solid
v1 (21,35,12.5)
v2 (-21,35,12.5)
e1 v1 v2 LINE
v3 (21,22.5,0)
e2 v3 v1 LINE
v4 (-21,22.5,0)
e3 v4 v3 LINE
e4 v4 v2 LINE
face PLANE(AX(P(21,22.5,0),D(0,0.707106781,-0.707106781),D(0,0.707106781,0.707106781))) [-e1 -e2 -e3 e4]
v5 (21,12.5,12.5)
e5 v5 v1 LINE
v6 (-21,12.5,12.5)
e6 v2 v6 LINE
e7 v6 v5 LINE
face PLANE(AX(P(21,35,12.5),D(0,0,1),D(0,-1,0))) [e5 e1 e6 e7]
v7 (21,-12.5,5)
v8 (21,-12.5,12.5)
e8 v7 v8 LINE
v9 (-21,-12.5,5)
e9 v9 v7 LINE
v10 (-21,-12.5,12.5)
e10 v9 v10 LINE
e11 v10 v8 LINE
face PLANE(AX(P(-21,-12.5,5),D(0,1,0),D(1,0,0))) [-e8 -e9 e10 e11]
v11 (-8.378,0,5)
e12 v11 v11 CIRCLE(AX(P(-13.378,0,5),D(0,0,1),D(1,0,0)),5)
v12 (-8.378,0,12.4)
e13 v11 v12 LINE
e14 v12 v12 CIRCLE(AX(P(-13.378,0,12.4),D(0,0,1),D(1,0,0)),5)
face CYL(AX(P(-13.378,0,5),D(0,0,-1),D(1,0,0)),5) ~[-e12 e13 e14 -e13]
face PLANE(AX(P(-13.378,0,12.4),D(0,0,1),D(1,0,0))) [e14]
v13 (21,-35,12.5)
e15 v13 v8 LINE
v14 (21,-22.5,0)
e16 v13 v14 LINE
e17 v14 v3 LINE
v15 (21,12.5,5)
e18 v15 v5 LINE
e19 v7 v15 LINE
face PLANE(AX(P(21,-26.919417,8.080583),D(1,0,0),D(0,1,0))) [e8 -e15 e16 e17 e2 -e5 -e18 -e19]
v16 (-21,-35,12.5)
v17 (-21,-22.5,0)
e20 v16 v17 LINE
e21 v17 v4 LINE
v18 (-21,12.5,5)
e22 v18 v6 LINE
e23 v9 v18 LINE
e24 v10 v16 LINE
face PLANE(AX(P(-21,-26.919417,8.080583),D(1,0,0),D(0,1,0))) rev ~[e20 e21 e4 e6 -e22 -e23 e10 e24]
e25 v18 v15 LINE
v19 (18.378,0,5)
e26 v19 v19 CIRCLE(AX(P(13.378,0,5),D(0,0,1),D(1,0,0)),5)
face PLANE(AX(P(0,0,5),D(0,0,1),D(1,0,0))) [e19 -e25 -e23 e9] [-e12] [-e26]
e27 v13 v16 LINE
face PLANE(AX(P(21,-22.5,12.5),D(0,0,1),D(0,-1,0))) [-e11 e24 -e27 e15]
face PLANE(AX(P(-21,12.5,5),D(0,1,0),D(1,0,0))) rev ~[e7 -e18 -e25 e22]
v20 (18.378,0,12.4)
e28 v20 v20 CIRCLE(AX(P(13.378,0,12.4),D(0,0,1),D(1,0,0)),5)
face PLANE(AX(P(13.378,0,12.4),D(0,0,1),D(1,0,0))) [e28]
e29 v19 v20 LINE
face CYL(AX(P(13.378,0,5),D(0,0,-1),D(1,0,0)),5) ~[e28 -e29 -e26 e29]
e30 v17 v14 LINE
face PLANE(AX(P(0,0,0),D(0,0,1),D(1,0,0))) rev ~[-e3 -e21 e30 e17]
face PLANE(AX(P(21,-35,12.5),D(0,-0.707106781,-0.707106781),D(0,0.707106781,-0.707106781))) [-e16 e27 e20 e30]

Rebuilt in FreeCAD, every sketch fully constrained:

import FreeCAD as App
import Part
import Sketcher
Q = App.Units.Quantity

doc = App.newDocument("Part")
body = doc.addObject("PartDesign::Body", "Body")

# Sketch on XY plane
sketch1 = body.newObject("Sketcher::SketchObject", "Sketch")
sketch1.AttachmentSupport = (doc.getObject("XY_Plane"), [""])
sketch1.MapMode = "FlatFace"
sketch1.addGeometry([
    Part.LineSegment(App.Vector(-21, 22, 0), App.Vector(-21, -22, 0)),
    Part.LineSegment(App.Vector(-21, -22, 0), App.Vector(21, -22, 0)),
    Part.LineSegment(App.Vector(21, -22, 0), App.Vector(21, 22, 0)),
    Part.LineSegment(App.Vector(21, 22, 0), App.Vector(-21, 22, 0)),
], False)
sketch1.addConstraint([
    Sketcher.Constraint("Coincident", 0, 2, 1, 1),
    Sketcher.Constraint("Coincident", 1, 2, 2, 1),
    Sketcher.Constraint("Coincident", 2, 2, 3, 1),
    Sketcher.Constraint("Coincident", 3, 2, 0, 1),
    Sketcher.Constraint("Vertical", 0),
    Sketcher.Constraint("Horizontal", 1),
    Sketcher.Constraint("Vertical", 2),
    Sketcher.Constraint("Horizontal", 3),
    Sketcher.Constraint("Symmetric", 0, 2, 2, 2, -1, 1),
    Sketcher.Constraint("DistanceX", 1, 1, 1, 2, Q("42 mm")),
    Sketcher.Constraint("DistanceY", 0, 2, 0, 1, Q("45 mm")),
])
pad1 = body.newObject("PartDesign::Pad", "Pad")
pad1.Profile = sketch1
pad1.Length = 5

# Sketch on XY plane
sketch2 = body.newObject("Sketcher::SketchObject", "Sketch001")
sketch2.AttachmentSupport = (doc.getObject("XY_Plane"), [""])
sketch2.MapMode = "FlatFace"
sketch2.AttachmentOffset = App.Placement(App.Vector(0, 0, 5), App.Rotation())
sketch2.addGeometry([
    Part.Circle(App.Vector(-13, 0, 0), App.Vector(0, 0, 1), 5),
    Part.Circle(App.Vector(13, 0, 0), App.Vector(0, 0, 1), 5),
], False)
sketch2.addConstraint([
    Sketcher.Constraint("Equal", 0, 1),
    Sketcher.Constraint("Symmetric", 0, 3, 1, 3, -1, 1),
    Sketcher.Constraint("PointOnObject", 0, 3, -1),
    Sketcher.Constraint("Diameter", 0, Q("10 mm")),
    Sketcher.Constraint("DistanceX", 0, 3, -1, 1, Q("13.378 mm")),
])
pad2 = body.newObject("PartDesign::Pad", "Pad001")
pad2.Profile = sketch2
pad2.Length = 7.4

# Sketch on XY plane
sketch3 = body.newObject("Sketcher::SketchObject", "Sketch002")
sketch3.AttachmentSupport = (doc.getObject("XY_Plane"), [""])
sketch3.MapMode = "FlatFace"
sketch3.AttachmentOffset = App.Placement(App.Vector(0, 0, 5), App.Rotation())
sketch3.addGeometry([
    Part.LineSegment(App.Vector(-21, 22, 0), App.Vector(-21, 12, 0)),  # 0
    Part.LineSegment(App.Vector(-21, 12, 0), App.Vector(21, 12, 0)),  # 1
    Part.LineSegment(App.Vector(21, 12, 0), App.Vector(21, 22, 0)),  # 2
    Part.LineSegment(App.Vector(21, 22, 0), App.Vector(-21, 22, 0)),  # 3
    Part.LineSegment(App.Vector(-21, -12, 0), App.Vector(-21, -22, 0)),  # 4
    Part.LineSegment(App.Vector(-21, -22, 0), App.Vector(21, -22, 0)),  # 5
    Part.LineSegment(App.Vector(21, -22, 0), App.Vector(21, -12, 0)),  # 6
    Part.LineSegment(App.Vector(21, -12, 0), App.Vector(-21, -12, 0)),  # 7
], False)
sketch3.addConstraint([
    Sketcher.Constraint("Coincident", 0, 2, 1, 1),
    Sketcher.Constraint("Coincident", 1, 2, 2, 1),
    Sketcher.Constraint("Coincident", 2, 2, 3, 1),
    Sketcher.Constraint("Coincident", 3, 2, 0, 1),
    Sketcher.Constraint("Coincident", 4, 2, 5, 1),
    Sketcher.Constraint("Coincident", 5, 2, 6, 1),
    Sketcher.Constraint("Coincident", 6, 2, 7, 1),
    Sketcher.Constraint("Coincident", 7, 2, 4, 1),
    Sketcher.Constraint("Vertical", 0),
    Sketcher.Constraint("Horizontal", 1),
    Sketcher.Constraint("Vertical", 2),
    Sketcher.Constraint("Horizontal", 3),
    Sketcher.Constraint("Vertical", 4),
    Sketcher.Constraint("Horizontal", 5),
    Sketcher.Constraint("Vertical", 6),
    Sketcher.Constraint("Horizontal", 7),
    Sketcher.Constraint("Symmetric", 2, 2, 4, 2, -1, 1),
    Sketcher.Constraint("Symmetric", 0, 2, 6, 2, -1, 1),
    Sketcher.Constraint("Vertical", 3, 2, 4, 2),
    Sketcher.Constraint("DistanceX", 1, 1, 1, 2, Q("42 mm")),
    Sketcher.Constraint("DistanceY", 0, 2, 0, 1, Q("10 mm")),
    Sketcher.Constraint("DistanceY", 4, 2, 0, 2, Q("35 mm")),
])
pad3 = body.newObject("PartDesign::Pad", "Pad002")
pad3.Profile = sketch3
pad3.Length = 7.5

# Sketch on YZ plane
sketch4 = body.newObject("Sketcher::SketchObject", "Sketch003")
sketch4.AttachmentSupport = (doc.getObject("YZ_Plane"), [""])
sketch4.MapMode = "FlatFace"
sketch4.AttachmentOffset = App.Placement(App.Vector(0, 0, 21), App.Rotation())
sketch4.addGeometry([
    Part.LineSegment(App.Vector(22, 12, 0), App.Vector(22, 0, 0)),
    Part.LineSegment(App.Vector(22, 0, 0), App.Vector(35, 12, 0)),
    Part.LineSegment(App.Vector(35, 12, 0), App.Vector(22, 12, 0)),
], False)
sketch4.addConstraint([
    Sketcher.Constraint("Coincident", 0, 2, 1, 1),
    Sketcher.Constraint("Coincident", 1, 2, 2, 1),
    Sketcher.Constraint("Coincident", 2, 2, 0, 1),
    Sketcher.Constraint("Vertical", 0),
    Sketcher.Constraint("Horizontal", 2),
    Sketcher.Constraint("PointOnObject", 0, 2, -1),
    Sketcher.Constraint("Equal", 2, 0),
    Sketcher.Constraint("DistanceX", 2, 2, 2, 1, Q("12.5 mm")),
    Sketcher.Constraint("DistanceX", -1, 1, 1, 2, Q("35 mm")),
])
pad4 = body.newObject("PartDesign::Pad", "Pad003")
pad4.Profile = sketch4
pad4.Length = 42
pad4.Reversed = True

# Sketch on YZ plane
sketch5 = body.newObject("Sketcher::SketchObject", "Sketch004")
sketch5.AttachmentSupport = (doc.getObject("YZ_Plane"), [""])
sketch5.MapMode = "FlatFace"
sketch5.AttachmentOffset = App.Placement(App.Vector(0, 0, 21), App.Rotation())
sketch5.addGeometry([
    Part.LineSegment(App.Vector(-35, 12, 0), App.Vector(-22, 0, 0)),
    Part.LineSegment(App.Vector(-22, 0, 0), App.Vector(-22, 12, 0)),
    Part.LineSegment(App.Vector(-22, 12, 0), App.Vector(-35, 12, 0)),
], False)
sketch5.addConstraint([
    Sketcher.Constraint("Coincident", 0, 2, 1, 1),
    Sketcher.Constraint("Coincident", 1, 2, 2, 1),
    Sketcher.Constraint("Coincident", 2, 2, 0, 1),
    Sketcher.Constraint("Vertical", 1),
    Sketcher.Constraint("Horizontal", 2),
    Sketcher.Constraint("PointOnObject", 0, 2, -1),
    Sketcher.Constraint("Equal", 2, 1),
    Sketcher.Constraint("DistanceX", 2, 2, 2, 1, Q("12.5 mm")),
    Sketcher.Constraint("DistanceX", 2, 2, -1, 1, Q("35 mm")),
])
pad5 = body.newObject("PartDesign::Pad", "Pad004")
pad5.Profile = sketch5
pad5.Length = 42
pad5.Reversed = True

doc.recompute()
